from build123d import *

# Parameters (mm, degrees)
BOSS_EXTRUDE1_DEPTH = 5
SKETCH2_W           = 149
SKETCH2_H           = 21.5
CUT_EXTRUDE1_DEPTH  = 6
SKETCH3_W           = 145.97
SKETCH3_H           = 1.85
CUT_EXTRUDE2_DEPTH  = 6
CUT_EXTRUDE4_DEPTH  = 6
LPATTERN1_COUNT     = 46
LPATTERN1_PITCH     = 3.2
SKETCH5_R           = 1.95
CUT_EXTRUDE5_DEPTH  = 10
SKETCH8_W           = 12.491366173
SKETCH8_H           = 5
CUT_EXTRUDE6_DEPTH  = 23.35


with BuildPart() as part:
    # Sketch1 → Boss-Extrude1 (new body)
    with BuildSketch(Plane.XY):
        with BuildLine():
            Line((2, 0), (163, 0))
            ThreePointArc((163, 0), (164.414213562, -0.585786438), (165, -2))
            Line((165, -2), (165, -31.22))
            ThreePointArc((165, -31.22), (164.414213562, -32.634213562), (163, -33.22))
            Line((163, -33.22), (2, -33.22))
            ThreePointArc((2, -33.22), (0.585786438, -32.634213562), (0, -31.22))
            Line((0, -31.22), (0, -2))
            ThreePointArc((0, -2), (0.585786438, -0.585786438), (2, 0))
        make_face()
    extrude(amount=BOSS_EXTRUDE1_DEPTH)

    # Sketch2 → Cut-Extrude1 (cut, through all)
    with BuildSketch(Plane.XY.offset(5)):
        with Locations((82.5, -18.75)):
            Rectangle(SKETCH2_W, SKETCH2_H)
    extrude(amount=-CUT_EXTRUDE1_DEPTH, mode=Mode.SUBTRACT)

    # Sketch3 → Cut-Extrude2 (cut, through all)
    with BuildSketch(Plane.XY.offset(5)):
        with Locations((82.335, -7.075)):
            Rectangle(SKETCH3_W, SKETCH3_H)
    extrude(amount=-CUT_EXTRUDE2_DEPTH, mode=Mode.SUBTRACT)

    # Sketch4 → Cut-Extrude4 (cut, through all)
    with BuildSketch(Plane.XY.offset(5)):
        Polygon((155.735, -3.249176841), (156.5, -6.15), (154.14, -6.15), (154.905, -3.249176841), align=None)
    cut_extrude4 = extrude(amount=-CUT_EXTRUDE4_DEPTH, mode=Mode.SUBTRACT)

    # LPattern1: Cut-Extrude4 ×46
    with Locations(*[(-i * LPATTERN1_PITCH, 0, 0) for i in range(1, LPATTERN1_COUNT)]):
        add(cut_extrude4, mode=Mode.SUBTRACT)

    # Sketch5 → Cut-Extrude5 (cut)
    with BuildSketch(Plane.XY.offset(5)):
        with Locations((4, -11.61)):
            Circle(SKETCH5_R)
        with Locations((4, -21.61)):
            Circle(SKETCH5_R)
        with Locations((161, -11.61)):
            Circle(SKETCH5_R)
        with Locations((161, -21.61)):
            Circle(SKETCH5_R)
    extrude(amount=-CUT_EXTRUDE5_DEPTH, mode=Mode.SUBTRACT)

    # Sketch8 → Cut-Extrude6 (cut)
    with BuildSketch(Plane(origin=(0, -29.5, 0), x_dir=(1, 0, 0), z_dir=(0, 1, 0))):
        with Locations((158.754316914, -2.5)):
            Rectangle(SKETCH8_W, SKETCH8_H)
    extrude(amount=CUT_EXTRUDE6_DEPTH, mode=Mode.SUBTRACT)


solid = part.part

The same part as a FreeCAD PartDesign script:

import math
import FreeCAD as App
import Part
import Sketcher

V = App.Vector

doc = App.newDocument("Part")
body = doc.addObject("PartDesign::Body", "Body")

# Sketch on XY plane
sketch1 = body.newObject("Sketcher::SketchObject", "Sketch")
sketch1.AttachmentSupport = (doc.getObject("XY_Plane"), [""])
sketch1.MapMode = "FlatFace"
sketch1.addGeometry(Part.LineSegment(V(163, 0, 0), V(2, 0, 0)), False)
sketch1.addGeometry(Part.ArcOfCircle(Part.Circle(V(2, -2, 0), V(0, 0, 1), 2), math.radians(90), math.radians(180)), False)
sketch1.addGeometry(Part.LineSegment(V(0, -2, 0), V(0, -31.2, 0)), False)
sketch1.addGeometry(Part.ArcOfCircle(Part.Circle(V(2, -31.2, 0), V(0, 0, 1), 2), math.radians(-180), math.radians(-90)), False)
sketch1.addGeometry(Part.LineSegment(V(2, -33.2, 0), V(163, -33.2, 0)), False)
sketch1.addGeometry(Part.ArcOfCircle(Part.Circle(V(163, -31.2, 0), V(0, 0, 1), 2), math.radians(-90), math.radians(0)), False)
sketch1.addGeometry(Part.LineSegment(V(165, -31.2, 0), V(165, -2, 0)), False)
sketch1.addGeometry(Part.ArcOfCircle(Part.Circle(V(163, -2, 0), V(0, 0, 1), 2), math.radians(0), math.radians(90)), False)
sketch1.addConstraint(Sketcher.Constraint("Tangent", 0, 2, 1, 1))
sketch1.addConstraint(Sketcher.Constraint("Tangent", 1, 2, 2, 1))
sketch1.addConstraint(Sketcher.Constraint("Tangent", 2, 2, 3, 1))
sketch1.addConstraint(Sketcher.Constraint("Tangent", 3, 2, 4, 1))
sketch1.addConstraint(Sketcher.Constraint("Tangent", 4, 2, 5, 1))
sketch1.addConstraint(Sketcher.Constraint("Tangent", 5, 2, 6, 1))
sketch1.addConstraint(Sketcher.Constraint("Tangent", 6, 2, 7, 1))
sketch1.addConstraint(Sketcher.Constraint("Tangent", 7, 2, 0, 1))
sketch1.addConstraint(Sketcher.Constraint("Horizontal", 0))
sketch1.addConstraint(Sketcher.Constraint("Vertical", 2))
sketch1.addConstraint(Sketcher.Constraint("Horizontal", 4))
sketch1.addConstraint(Sketcher.Constraint("Vertical", 6))
sketch1.addConstraint(Sketcher.Constraint("Equal", 1, 3))
sketch1.addConstraint(Sketcher.Constraint("Equal", 3, 5))
sketch1.addConstraint(Sketcher.Constraint("Equal", 5, 7))
sketch1.addConstraint(Sketcher.Constraint("PointOnObject", 0, 2, -1))
sketch1.addConstraint(Sketcher.Constraint("PointOnObject", 1, 2, -2))
sketch1.addConstraint(Sketcher.Constraint("Radius", 1, 2.0))
sketch1.addConstraint(Sketcher.Constraint("DistanceX", 0, 2, 0, 1, 161.0))
sketch1.addConstraint(Sketcher.Constraint("DistanceY", 2, 2, 2, 1, 29.22))
pad1 = body.newObject("PartDesign::Pad", "Pad")
pad1.Profile = sketch1
pad1.Length = 5

# Sketch on XY plane
sketch2 = body.newObject("Sketcher::SketchObject", "Sketch001")
sketch2.AttachmentSupport = (doc.getObject("XY_Plane"), [""])
sketch2.MapMode = "FlatFace"
sketch2.AttachmentOffset = App.Placement(V(0, 0, 5), App.Rotation())
sketch2.addGeometry(Part.LineSegment(V(8, -8, 0), V(8, -30, 0)), False)
sketch2.addGeometry(Part.LineSegment(V(8, -30, 0), V(157, -30, 0)), False)
sketch2.addGeometry(Part.LineSegment(V(157, -30, 0), V(157, -8, 0)), False)
sketch2.addGeometry(Part.LineSegment(V(157, -8, 0), V(8, -8, 0)), False)
sketch2.addConstraint(Sketcher.Constraint("Coincident", 0, 2, 1, 1))
sketch2.addConstraint(Sketcher.Constraint("Coincident", 1, 2, 2, 1))
sketch2.addConstraint(Sketcher.Constraint("Coincident", 2, 2, 3, 1))
sketch2.addConstraint(Sketcher.Constraint("Coincident", 3, 2, 0, 1))
sketch2.addConstraint(Sketcher.Constraint("Vertical", 0))
sketch2.addConstraint(Sketcher.Constraint("Horizontal", 1))
sketch2.addConstraint(Sketcher.Constraint("Vertical", 2))
sketch2.addConstraint(Sketcher.Constraint("Horizontal", 3))
sketch2.addConstraint(Sketcher.Constraint("DistanceX", 1, 1, 1, 2, 149.0))
sketch2.addConstraint(Sketcher.Constraint("DistanceY", 0, 2, 0, 1, 21.5))
sketch2.addConstraint(Sketcher.Constraint("DistanceX", -1, 1, 0, 2, 8.0))
sketch2.addConstraint(Sketcher.Constraint("DistanceY", 2, 2, -1, 1, 8.0))
pocket1 = body.newObject("PartDesign::Pocket", "Pocket")
pocket1.Profile = sketch2
pocket1.Type = "ThroughAll"

# Sketch on XY plane
sketch3 = body.newObject("Sketcher::SketchObject", "Sketch002")
sketch3.AttachmentSupport = (doc.getObject("XY_Plane"), [""])
sketch3.MapMode = "FlatFace"
sketch3.AttachmentOffset = App.Placement(V(0, 0, 5), App.Rotation())
sketch3.addGeometry(Part.LineSegment(V(9.3, -6.2, 0), V(9.3, -8, 0)), False)
sketch3.addGeometry(Part.LineSegment(V(9.3, -8, 0), V(155.3, -8, 0)), False)
sketch3.addGeometry(Part.LineSegment(V(155.3, -8, 0), V(155.3, -6.2, 0)), False)
sketch3.addGeometry(Part.LineSegment(V(155.3, -6.2, 0), V(9.3, -6.2, 0)), False)
sketch3.addConstraint(Sketcher.Constraint("Coincident", 0, 2, 1, 1))
sketch3.addConstraint(Sketcher.Constraint("Coincident", 1, 2, 2, 1))
sketch3.addConstraint(Sketcher.Constraint("Coincident", 2, 2, 3, 1))
sketch3.addConstraint(Sketcher.Constraint("Coincident", 3, 2, 0, 1))
sketch3.addConstraint(Sketcher.Constraint("Vertical", 0))
sketch3.addConstraint(Sketcher.Constraint("Horizontal", 1))
sketch3.addConstraint(Sketcher.Constraint("Vertical", 2))
sketch3.addConstraint(Sketcher.Constraint("Horizontal", 3))
sketch3.addConstraint(Sketcher.Constraint("DistanceY", 0, 2, -1, 1, 8.0))
sketch3.addConstraint(Sketcher.Constraint("DistanceX", 1, 1, 1, 2, 145.97))
sketch3.addConstraint(Sketcher.Constraint("DistanceY", 0, 2, 0, 1, 1.85))
sketch3.addConstraint(Sketcher.Constraint("DistanceX", -1, 1, 0, 2, 9.35))
pocket2 = body.newObject("PartDesign::Pocket", "Pocket001")
pocket2.Profile = sketch3
pocket2.Type = "ThroughAll"

# Sketch on XY plane
sketch4 = body.newObject("Sketcher::SketchObject", "Sketch003")
sketch4.AttachmentSupport = (doc.getObject("XY_Plane"), [""])
sketch4.MapMode = "FlatFace"
sketch4.AttachmentOffset = App.Placement(V(0, 0, 5), App.Rotation())
sketch4.addGeometry(Part.LineSegment(V(156.5, -6.2, 0), V(155.7, -3.2, 0)), False)
sketch4.addGeometry(Part.LineSegment(V(155.7, -3.2, 0), V(154.9, -3.2, 0)), False)
sketch4.addGeometry(Part.LineSegment(V(154.9, -3.2, 0), V(154.1, -6.2, 0)), False)
sketch4.addGeometry(Part.LineSegment(V(154.1, -6.2, 0), V(156.5, -6.2, 0)), False)
sketch4.addConstraint(Sketcher.Constraint("Coincident", 0, 2, 1, 1))
sketch4.addConstraint(Sketcher.Constraint("Coincident", 1, 2, 2, 1))
sketch4.addConstraint(Sketcher.Constraint("Coincident", 2, 2, 3, 1))
sketch4.addConstraint(Sketcher.Constraint("Coincident", 3, 2, 0, 1))
sketch4.addConstraint(Sketcher.Constraint("Horizontal", 1))
sketch4.addConstraint(Sketcher.Constraint("Horizontal", 3))
sketch4.addConstraint(Sketcher.Constraint("Equal", 0, 2))
sketch4.addConstraint(Sketcher.Constraint("Distance", 0, 3.0))
sketch4.addConstraint(Sketcher.Constraint("DistanceX", 1, 2, 1, 1, 0.83))
sketch4.addConstraint(Sketcher.Constraint("DistanceX", 3, 1, 3, 2, 2.36))
sketch4.addConstraint(Sketcher.Constraint("DistanceX", -1, 1, 3, 2, 156.5))
sketch4.addConstraint(Sketcher.Constraint("DistanceY", 2, 2, -1, 1, 6.15))
pocket3 = body.newObject("PartDesign::Pocket", "Pocket002")
pocket3.Profile = sketch4
pocket3.Type = "ThroughAll"
doc.recompute()

linearpattern = body.newObject("PartDesign::LinearPattern", "LinearPattern")
linearpattern.Originals = [pocket3]
linearpattern.Direction = (doc.getObject("X_Axis"), [""])
linearpattern.Mode = "offset"
linearpattern.Offset = 3.2
linearpattern.Occurrences = 46
linearpattern.Reversed = True
body.Tip = linearpattern

# Sketch on XY plane
sketch5 = body.newObject("Sketcher::SketchObject", "Sketch004")
sketch5.AttachmentSupport = (doc.getObject("XY_Plane"), [""])
sketch5.MapMode = "FlatFace"
sketch5.AttachmentOffset = App.Placement(V(0, 0, 5), App.Rotation())
sketch5.addGeometry(Part.Circle(V(4, -11.6, 0), V(0, 0, 1), 1.9), False)
sketch5.addGeometry(Part.Circle(V(4, -21.6, 0), V(0, 0, 1), 1.9), False)
sketch5.addGeometry(Part.Circle(V(161, -11.6, 0), V(0, 0, 1), 1.9), False)
sketch5.addGeometry(Part.Circle(V(161, -21.6, 0), V(0, 0, 1), 1.9), False)
sketch5.addConstraint(Sketcher.Constraint("Equal", 0, 1))
sketch5.addConstraint(Sketcher.Constraint("Equal", 1, 2))
sketch5.addConstraint(Sketcher.Constraint("Equal", 2, 3))
sketch5.addConstraint(Sketcher.Constraint("Horizontal", 0, 3, 2, 3))
sketch5.addConstraint(Sketcher.Constraint("Horizontal", 1, 3, 3, 3))
sketch5.addConstraint(Sketcher.Constraint("Vertical", 0, 3, 1, 3))
sketch5.addConstraint(Sketcher.Constraint("Vertical", 2, 3, 3, 3))
sketch5.addConstraint(Sketcher.Constraint("Diameter", 0, 3.9))
sketch5.addConstraint(Sketcher.Constraint("DistanceX", -1, 1, 0, 3, 4.0))
sketch5.addConstraint(Sketcher.Constraint("DistanceX", -1, 1, 2, 3, 161.0))
sketch5.addConstraint(Sketcher.Constraint("DistanceY", 1, 3, 0, 3, 10.0))
sketch5.addConstraint(Sketcher.Constraint("DistanceY", 0, 3, -1, 1, 11.61))
pocket4 = body.newObject("PartDesign::Pocket", "Pocket003")
pocket4.Profile = sketch5
pocket4.Length = 10

# Sketch on XZ plane
sketch6 = body.newObject("Sketcher::SketchObject", "Sketch005")
sketch6.AttachmentSupport = (doc.getObject("XZ_Plane"), [""])
sketch6.MapMode = "FlatFace"
sketch6.AttachmentOffset = App.Placement(V(0, 0, 29.5), App.Rotation())
sketch6.addGeometry(Part.LineSegment(V(153, 0, 0), V(153, 5, 0)), False)
sketch6.addGeometry(Part.LineSegment(V(153, 5, 0), V(165, 5, 0)), False)
sketch6.addGeometry(Part.LineSegment(V(165, 5, 0), V(165, 0, 0)), False)
sketch6.addGeometry(Part.LineSegment(V(165, 0, 0), V(153, 0, 0)), False)
sketch6.addConstraint(Sketcher.Constraint("Coincident", 0, 2, 1, 1))
sketch6.addConstraint(Sketcher.Constraint("Coincident", 1, 2, 2, 1))
sketch6.addConstraint(Sketcher.Constraint("Coincident", 2, 2, 3, 1))
sketch6.addConstraint(Sketcher.Constraint("Coincident", 3, 2, 0, 1))
sketch6.addConstraint(Sketcher.Constraint("Vertical", 0))
sketch6.addConstraint(Sketcher.Constraint("Horizontal", 1))
sketch6.addConstraint(Sketcher.Constraint("Vertical", 2))
sketch6.addConstraint(Sketcher.Constraint("Horizontal", 3))
sketch6.addConstraint(Sketcher.Constraint("PointOnObject", 2, 2, -1))
sketch6.addConstraint(Sketcher.Constraint("DistanceY", 0, 1, 0, 2, 5.0))
sketch6.addConstraint(Sketcher.Constraint("DistanceX", -1, 1, 1, 2, 165.0))
sketch6.addConstraint(Sketcher.Constraint("DistanceX", 1, 1, 1, 2, 12.491366))
pocket5 = body.newObject("PartDesign::Pocket", "Pocket004")
pocket5.Profile = sketch6
pocket5.Length = 23.35

doc.recompute()
